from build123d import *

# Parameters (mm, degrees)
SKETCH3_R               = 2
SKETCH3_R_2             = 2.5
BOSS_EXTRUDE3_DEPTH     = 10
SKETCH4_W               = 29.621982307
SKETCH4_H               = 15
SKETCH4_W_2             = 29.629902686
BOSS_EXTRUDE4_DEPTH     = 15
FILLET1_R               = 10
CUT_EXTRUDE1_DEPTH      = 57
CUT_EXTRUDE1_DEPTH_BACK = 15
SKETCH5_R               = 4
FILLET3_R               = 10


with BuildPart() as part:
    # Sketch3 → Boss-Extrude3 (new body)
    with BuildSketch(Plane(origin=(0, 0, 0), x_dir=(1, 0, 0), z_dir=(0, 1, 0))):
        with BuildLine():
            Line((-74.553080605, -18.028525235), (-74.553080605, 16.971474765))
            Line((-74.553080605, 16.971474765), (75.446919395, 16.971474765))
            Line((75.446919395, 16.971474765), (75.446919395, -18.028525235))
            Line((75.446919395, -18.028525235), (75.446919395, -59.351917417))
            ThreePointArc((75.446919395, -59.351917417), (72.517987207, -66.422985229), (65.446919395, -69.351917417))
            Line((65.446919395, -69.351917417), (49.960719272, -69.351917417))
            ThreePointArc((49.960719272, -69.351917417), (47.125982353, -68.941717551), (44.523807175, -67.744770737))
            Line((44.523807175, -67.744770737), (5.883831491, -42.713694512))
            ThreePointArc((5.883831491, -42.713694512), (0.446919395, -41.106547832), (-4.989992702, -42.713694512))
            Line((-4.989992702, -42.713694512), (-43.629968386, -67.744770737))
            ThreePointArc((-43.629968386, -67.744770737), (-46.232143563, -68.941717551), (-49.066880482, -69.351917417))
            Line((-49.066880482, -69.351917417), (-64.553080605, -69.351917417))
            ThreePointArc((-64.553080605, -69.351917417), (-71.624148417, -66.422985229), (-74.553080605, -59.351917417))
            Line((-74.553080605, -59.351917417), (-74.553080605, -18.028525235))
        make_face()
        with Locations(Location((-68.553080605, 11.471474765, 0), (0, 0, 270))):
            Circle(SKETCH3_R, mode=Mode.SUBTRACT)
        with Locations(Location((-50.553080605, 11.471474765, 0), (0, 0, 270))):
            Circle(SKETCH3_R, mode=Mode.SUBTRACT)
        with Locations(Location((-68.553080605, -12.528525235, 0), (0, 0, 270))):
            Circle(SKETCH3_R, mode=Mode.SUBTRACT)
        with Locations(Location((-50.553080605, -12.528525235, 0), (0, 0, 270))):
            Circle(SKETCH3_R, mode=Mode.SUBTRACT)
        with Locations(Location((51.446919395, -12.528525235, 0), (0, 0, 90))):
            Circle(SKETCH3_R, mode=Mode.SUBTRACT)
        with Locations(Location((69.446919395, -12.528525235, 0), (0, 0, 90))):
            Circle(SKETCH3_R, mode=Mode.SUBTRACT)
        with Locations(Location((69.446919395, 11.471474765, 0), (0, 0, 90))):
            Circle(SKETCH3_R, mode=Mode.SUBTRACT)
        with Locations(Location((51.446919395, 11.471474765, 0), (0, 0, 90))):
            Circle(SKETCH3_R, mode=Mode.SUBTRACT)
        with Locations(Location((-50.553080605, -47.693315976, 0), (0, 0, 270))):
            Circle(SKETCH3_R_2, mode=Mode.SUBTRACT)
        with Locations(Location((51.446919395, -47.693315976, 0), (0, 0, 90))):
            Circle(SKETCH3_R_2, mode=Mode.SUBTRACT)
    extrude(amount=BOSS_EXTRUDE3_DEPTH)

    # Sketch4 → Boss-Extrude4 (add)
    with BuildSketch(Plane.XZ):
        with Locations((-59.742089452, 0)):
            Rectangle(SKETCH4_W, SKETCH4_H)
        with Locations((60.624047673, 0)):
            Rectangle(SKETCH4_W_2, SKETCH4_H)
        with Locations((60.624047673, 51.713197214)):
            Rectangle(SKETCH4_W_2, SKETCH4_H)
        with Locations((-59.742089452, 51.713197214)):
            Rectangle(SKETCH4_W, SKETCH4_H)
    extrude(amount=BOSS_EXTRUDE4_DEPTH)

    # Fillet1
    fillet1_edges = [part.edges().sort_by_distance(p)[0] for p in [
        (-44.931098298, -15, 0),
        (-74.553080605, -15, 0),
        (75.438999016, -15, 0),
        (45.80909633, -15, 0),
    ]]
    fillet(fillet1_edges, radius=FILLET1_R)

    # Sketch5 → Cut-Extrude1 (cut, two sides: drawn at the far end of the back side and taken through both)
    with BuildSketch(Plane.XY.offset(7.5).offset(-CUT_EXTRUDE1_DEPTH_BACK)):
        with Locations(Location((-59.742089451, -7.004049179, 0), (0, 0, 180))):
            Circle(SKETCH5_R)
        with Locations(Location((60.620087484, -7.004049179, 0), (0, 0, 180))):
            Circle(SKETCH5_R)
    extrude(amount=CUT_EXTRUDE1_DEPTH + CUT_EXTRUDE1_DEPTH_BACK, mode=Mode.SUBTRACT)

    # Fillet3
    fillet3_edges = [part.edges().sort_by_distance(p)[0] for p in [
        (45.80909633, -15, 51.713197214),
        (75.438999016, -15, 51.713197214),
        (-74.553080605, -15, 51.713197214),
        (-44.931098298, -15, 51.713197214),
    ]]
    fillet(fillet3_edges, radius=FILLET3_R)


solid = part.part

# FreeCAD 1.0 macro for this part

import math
import FreeCAD as App
import Part
import Sketcher
from FreeCAD import Vector
Q = App.Units.Quantity


def edges_at(feature, points):
    """Names of the edges that pass closest to the given points."""
    edges = feature.Shape.Edges
    near = lambda p: min(range(len(edges)), key=lambda i: edges[i].distToShape(Part.Vertex(*p))[0])
    return sorted({f"Edge{near(p) + 1}" for p in points})


def add_polygon(sketch, points):
    """Adds a closed chain of lines whose ends are joined by coincident constraints."""
    first, n = sketch.GeometryCount, len(points)
    for a, b in zip(points, points[1:] + points[:1]):
        sketch.addGeometry(Part.LineSegment(App.Vector(*a, 0), App.Vector(*b, 0)), False)
    for i in range(n):
        sketch.addConstraint(Sketcher.Constraint("Coincident", first + i, 2, first + (i + 1) % n, 1))

doc = App.newDocument("Part")
body = doc.addObject("PartDesign::Body", "Body")

# Sketch on XZ plane
sketch1 = body.newObject("Sketcher::SketchObject", "Sketch")
sketch1.AttachmentSupport = (doc.getObject("XZ_Plane"), [""])
sketch1.MapMode = "FlatFace"
sketch1.addGeometry([
    Part.LineSegment(Vector(75.4, -17, 0), Vector(-74.6, -17, 0)),  # 0
    Part.LineSegment(Vector(-74.6, -17, 0), Vector(-74.6, 59.4, 0)),  # 1
    Part.ArcOfCircle(Part.Circle(Vector(-64.6, 59.4, 0), Vector(0, 0, 1), 10), math.radians(90), math.radians(180)),  # 2
    Part.LineSegment(Vector(-64.6, 69.4, 0), Vector(-49.1, 69.4, 0)),  # 3
    Part.ArcOfCircle(Part.Circle(Vector(-49.1, 59.4, 0), Vector(0, 0, 1), 10), math.radians(57), math.radians(90)),  # 4
    Part.LineSegment(Vector(-43.6, 67.7, 0), Vector(-5, 42.7, 0)),  # 5
    Part.ArcOfCircle(Part.Circle(Vector(0.4, 51.1, 0), Vector(0, 0, 1), 10), math.radians(-123), math.radians(-57)),  # 6
    Part.LineSegment(Vector(5.9, 42.7, 0), Vector(44.5, 67.7, 0)),  # 7
    Part.ArcOfCircle(Part.Circle(Vector(50, 59.4, 0), Vector(0, 0, 1), 10), math.radians(90), math.radians(123)),  # 8
    Part.LineSegment(Vector(50, 69.4, 0), Vector(65.4, 69.4, 0)),  # 9
    Part.ArcOfCircle(Part.Circle(Vector(65.4, 59.4, 0), Vector(0, 0, 1), 10), math.radians(0), math.radians(90)),  # 10
    Part.LineSegment(Vector(75.4, 59.4, 0), Vector(75.4, -17, 0)),  # 11
    Part.Circle(Vector(51.4, 47.7, 0), Vector(0, 0, 1), 2.5),  # 12
    Part.Circle(Vector(-50.6, 47.7, 0), Vector(0, 0, 1), 2.5),  # 13
    Part.Circle(Vector(69.4, 12.5, 0), Vector(0, 0, 1), 2),  # 14
    Part.Circle(Vector(51.4, 12.5, 0), Vector(0, 0, 1), 2),  # 15
    Part.Circle(Vector(69.4, -11.5, 0), Vector(0, 0, 1), 2),  # 16
    Part.Circle(Vector(51.4, -11.5, 0), Vector(0, 0, 1), 2),  # 17
    Part.Circle(Vector(-50.6, 12.5, 0), Vector(0, 0, 1), 2),  # 18
    Part.Circle(Vector(-68.6, 12.5, 0), Vector(0, 0, 1), 2),  # 19
    Part.Circle(Vector(-50.6, -11.5, 0), Vector(0, 0, 1), 2),  # 20
    Part.Circle(Vector(-68.6, -11.5, 0), Vector(0, 0, 1), 2),  # 21
], False)
sketch1.addConstraint([
    Sketcher.Constraint("Coincident", 0, 2, 1, 1),
    Sketcher.Constraint("Tangent", 1, 2, 2, 2),
    Sketcher.Constraint("Tangent", 2, 1, 3, 1),
    Sketcher.Constraint("Tangent", 3, 2, 4, 2),
    Sketcher.Constraint("Tangent", 4, 1, 5, 1),
    Sketcher.Constraint("Tangent", 5, 2, 6, 1),
    Sketcher.Constraint("Tangent", 6, 2, 7, 1),
    Sketcher.Constraint("Tangent", 7, 2, 8, 2),
    Sketcher.Constraint("Tangent", 8, 1, 9, 1),
    Sketcher.Constraint("Tangent", 9, 2, 10, 2),
    Sketcher.Constraint("Tangent", 10, 1, 11, 1),
    Sketcher.Constraint("Coincident", 11, 2, 0, 1),
    Sketcher.Constraint("Horizontal", 0),
    Sketcher.Constraint("Vertical", 1),
    Sketcher.Constraint("Horizontal", 3),
    Sketcher.Constraint("Horizontal", 9),
    Sketcher.Constraint("Vertical", 11),
    Sketcher.Constraint("Equal", 2, 4),
    Sketcher.Constraint("Equal", 4, 6),
    Sketcher.Constraint("Equal", 6, 8),
    Sketcher.Constraint("Equal", 8, 10),
    Sketcher.Constraint("Equal", 12, 13),
    Sketcher.Constraint("Equal", 14, 15),
    Sketcher.Constraint("Equal", 15, 16),
    Sketcher.Constraint("Equal", 16, 17),
    Sketcher.Constraint("Equal", 17, 18),
    Sketcher.Constraint("Equal", 18, 19),
    Sketcher.Constraint("Equal", 19, 20),
    Sketcher.Constraint("Equal", 20, 21),
    Sketcher.Constraint("Horizontal", 4, 3, 8, 3),
    Sketcher.Constraint("Horizontal", 12, 3, 13, 3),
    Sketcher.Constraint("Horizontal", 14, 3, 15, 3),
    Sketcher.Constraint("Horizontal", 16, 3, 17, 3),
    Sketcher.Constraint("Horizontal", 15, 3, 18, 3),
    Sketcher.Constraint("Horizontal", 18, 3, 19, 3),
    Sketcher.Constraint("Horizontal", 17, 3, 20, 3),
    Sketcher.Constraint("Horizontal", 20, 3, 21, 3),
    Sketcher.Constraint("Horizontal", 5, 2, 6, 2),
    Sketcher.Constraint("Vertical", 12, 3, 15, 3),
    Sketcher.Constraint("Vertical", 14, 3, 16, 3),
    Sketcher.Constraint("Vertical", 15, 3, 17, 3),
    Sketcher.Constraint("Vertical", 13, 3, 18, 3),
    Sketcher.Constraint("Vertical", 18, 3, 20, 3),
    Sketcher.Constraint("Vertical", 19, 3, 21, 3),
    Sketcher.Constraint("Equal", 3, 9),
    Sketcher.Constraint("Diameter", 12, Q("5 mm")),
    Sketcher.Constraint("Diameter", 14, Q("4 mm")),
    Sketcher.Constraint("Radius", 2, Q("10 mm")),
    Sketcher.Constraint("DistanceX", 0, 2, 0, 1, Q("150 mm")),
    Sketcher.Constraint("DistanceX", 12, 3, 10, 3, Q("14 mm")),
    Sketcher.Constraint("DistanceX", 2, 3, 13, 3, Q("14 mm")),
    Sketcher.Constraint("DistanceX", 12, 3, 14, 3, Q("18 mm")),
    Sketcher.Constraint("DistanceY", 16, 3, 14, 3, Q("24 mm")),
    Sketcher.Constraint("DistanceX", 19, 3, 18, 3, Q("18 mm")),
    Sketcher.Constraint("DistanceY", 0, 2, 21, 3, Q("5.5 mm")),
    Sketcher.Constraint("DistanceX", 3, 1, 3, 2, Q("15.4862 mm")),
    Sketcher.Constraint("DistanceY", 12, 3, 8, 3, Q("11.658601 mm")),
    Sketcher.Constraint("Distance", 5, Q("46.039141 mm")),
    Sketcher.Constraint("DistanceY", 1, 1, 1, 2, Q("76.323392 mm")),
    Sketcher.Constraint("DistanceX", 2, 3, -1, 1, Q("64.553081 mm")),
    Sketcher.Constraint("DistanceY", -1, 1, 4, 1, Q("67.744771 mm")),
])
pad1 = body.newObject("PartDesign::Pad", "Pad")
pad1.Profile = sketch1
pad1.Length = 10
pad1.Reversed = True

# Sketch on XZ plane
sketch2 = body.newObject("Sketcher::SketchObject", "Sketch001")
sketch2.AttachmentSupport = (doc.getObject("XZ_Plane"), [""])
sketch2.MapMode = "FlatFace"
add_polygon(sketch2, [(-75, 8), (-75, -8), (-45, -8), (-45, 8)])  # lines 0-3
add_polygon(sketch2, [(46, 8), (46, -8), (75, -8), (75, 8)])  # lines 4-7
add_polygon(sketch2, [(46, 59), (46, 44), (75, 44), (75, 59)])  # lines 8-11
add_polygon(sketch2, [(-75, 59), (-75, 44), (-45, 44), (-45, 59)])  # lines 12-15
sketch2.addConstraint([
    Sketcher.Constraint("Vertical", 0),
    Sketcher.Constraint("Horizontal", 1),
    Sketcher.Constraint("Vertical", 2),
    Sketcher.Constraint("Horizontal", 3),
    Sketcher.Constraint("Vertical", 4),
    Sketcher.Constraint("Horizontal", 5),
    Sketcher.Constraint("Vertical", 6),
    Sketcher.Constraint("Horizontal", 7),
    Sketcher.Constraint("Vertical", 8),
    Sketcher.Constraint("Horizontal", 9),
    Sketcher.Constraint("Vertical", 10),
    Sketcher.Constraint("Horizontal", 11),
    Sketcher.Constraint("Vertical", 12),
    Sketcher.Constraint("Horizontal", 13),
    Sketcher.Constraint("Vertical", 14),
    Sketcher.Constraint("Horizontal", 15),
    Sketcher.Constraint("Horizontal", 1, 2, 4, 2),
    Sketcher.Constraint("Horizontal", 3, 2, 6, 2),
    Sketcher.Constraint("Horizontal", 9, 2, 12, 2),
    Sketcher.Constraint("Horizontal", 11, 2, 14, 2),
    Sketcher.Constraint("Vertical", 7, 2, 8, 2),
    Sketcher.Constraint("Vertical", 6, 2, 9, 2),
    Sketcher.Constraint("Vertical", 3, 2, 12, 2),
    Sketcher.Constraint("Vertical", 2, 2, 13, 2),
    Sketcher.Constraint("Equal", 6, 8),
    Sketcher.Constraint("DistanceY", 0, 2, 0, 1, Q("15 mm")),
    Sketcher.Constraint("DistanceY", 0, 2, -1, 1, Q("7.5 mm")),
    Sketcher.Constraint("DistanceX", -1, 1, 5, 2, Q("75.438999 mm")),
    Sketcher.Constraint("DistanceX", 1, 2, -1, 1, Q("44.931098 mm")),
    Sketcher.Constraint("DistanceX", 1, 1, 1, 2, Q("29.621982 mm")),
    Sketcher.Constraint("DistanceX", 5, 1, 5, 2, Q("29.629903 mm")),
    Sketcher.Constraint("DistanceY", -1, 1, 8, 2, Q("44.213197 mm")),
])
pad2 = body.newObject("PartDesign::Pad", "Pad001")
pad2.Profile = sketch2
pad2.Length = 15
doc.recompute()

fillet = body.newObject("PartDesign::Fillet", "Fillet")
fillet.Base = (pad2, edges_at(pad2, [
    (-44.931, -15, 0),
    (-74.553, -15, 0),
    (75.439, -15, 0),
    (45.809, -15, 0),
]))
fillet.Radius = 10

# Sketch on XY plane
sketch3 = body.newObject("Sketcher::SketchObject", "Sketch002")
sketch3.AttachmentSupport = (doc.getObject("XY_Plane"), [""])
sketch3.MapMode = "FlatFace"
sketch3.AttachmentOffset = App.Placement(Vector(0, 0, 7.5), App.Rotation())
sketch3.addGeometry([
    Part.Circle(Vector(-59.7, -7, 0), Vector(0, 0, 1), 4),
    Part.Circle(Vector(60.6, -7, 0), Vector(0, 0, 1), 4),
], False)
sketch3.addConstraint([
    Sketcher.Constraint("Equal", 0, 1),
    Sketcher.Constraint("Horizontal", 0, 3, 1, 3),
    Sketcher.Constraint("Diameter", 0, Q("8 mm")),
    Sketcher.Constraint("DistanceX", 0, 3, -1, 1, Q("59.742089 mm")),
    Sketcher.Constraint("DistanceY", 0, 3, -1, 1, Q("7.004049 mm")),
    Sketcher.Constraint("DistanceX", -1, 1, 1, 3, Q("60.620087 mm")),
])
pocket1 = body.newObject("PartDesign::Pocket", "Pocket")
pocket1.Profile = sketch3
pocket1.Type = "ThroughAll"
pocket1.Midplane = True
doc.recompute()

fillet2 = body.newObject("PartDesign::Fillet", "Fillet001")
fillet2.Base = (pocket1, edges_at(pocket1, [
    (45.809, -15, 51.713),
    (75.439, -15, 51.713),
    (-74.553, -15, 51.713),
    (-44.931, -15, 51.713),
]))
fillet2.Radius = 10

doc.recompute()
